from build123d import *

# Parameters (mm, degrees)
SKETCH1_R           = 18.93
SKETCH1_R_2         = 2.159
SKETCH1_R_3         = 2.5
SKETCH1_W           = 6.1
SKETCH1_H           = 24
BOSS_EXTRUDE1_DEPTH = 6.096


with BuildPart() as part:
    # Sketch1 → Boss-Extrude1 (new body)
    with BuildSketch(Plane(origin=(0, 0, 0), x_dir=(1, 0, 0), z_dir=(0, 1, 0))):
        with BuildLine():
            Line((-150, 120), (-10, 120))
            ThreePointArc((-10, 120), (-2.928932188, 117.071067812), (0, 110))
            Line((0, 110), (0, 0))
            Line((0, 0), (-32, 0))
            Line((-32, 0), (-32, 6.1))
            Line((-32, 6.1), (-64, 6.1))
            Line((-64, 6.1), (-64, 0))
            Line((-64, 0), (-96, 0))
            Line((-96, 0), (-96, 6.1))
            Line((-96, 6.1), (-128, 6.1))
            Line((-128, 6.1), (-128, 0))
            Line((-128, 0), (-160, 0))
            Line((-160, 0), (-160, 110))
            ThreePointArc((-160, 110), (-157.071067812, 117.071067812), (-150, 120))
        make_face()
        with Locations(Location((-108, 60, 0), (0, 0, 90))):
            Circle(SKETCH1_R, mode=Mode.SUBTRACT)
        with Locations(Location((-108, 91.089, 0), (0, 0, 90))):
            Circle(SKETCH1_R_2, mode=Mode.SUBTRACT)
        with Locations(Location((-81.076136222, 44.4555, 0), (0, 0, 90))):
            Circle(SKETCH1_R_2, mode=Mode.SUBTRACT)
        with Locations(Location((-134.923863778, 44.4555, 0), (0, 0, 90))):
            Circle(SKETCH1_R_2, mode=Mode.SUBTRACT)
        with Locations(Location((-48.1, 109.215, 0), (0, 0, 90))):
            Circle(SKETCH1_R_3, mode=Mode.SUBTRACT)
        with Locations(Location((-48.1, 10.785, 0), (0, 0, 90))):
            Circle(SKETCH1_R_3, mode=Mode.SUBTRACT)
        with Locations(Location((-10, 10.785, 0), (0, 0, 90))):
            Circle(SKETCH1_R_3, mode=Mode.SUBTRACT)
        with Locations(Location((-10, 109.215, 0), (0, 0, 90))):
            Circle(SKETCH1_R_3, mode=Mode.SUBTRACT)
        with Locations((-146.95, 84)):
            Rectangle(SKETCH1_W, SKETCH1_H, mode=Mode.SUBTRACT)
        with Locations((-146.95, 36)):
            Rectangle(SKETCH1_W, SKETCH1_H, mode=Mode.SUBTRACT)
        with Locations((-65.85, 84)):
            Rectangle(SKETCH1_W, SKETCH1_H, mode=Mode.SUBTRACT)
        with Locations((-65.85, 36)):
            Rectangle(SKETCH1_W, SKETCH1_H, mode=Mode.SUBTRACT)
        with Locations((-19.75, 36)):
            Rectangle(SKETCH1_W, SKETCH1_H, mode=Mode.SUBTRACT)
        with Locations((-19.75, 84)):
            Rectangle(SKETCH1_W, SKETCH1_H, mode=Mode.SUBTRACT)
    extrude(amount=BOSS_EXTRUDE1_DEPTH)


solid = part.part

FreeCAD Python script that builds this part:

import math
import FreeCAD as App
import Part
import Sketcher


def add_polygon(sketch, points):
    """Adds a closed chain of lines whose ends are joined by coincident constraints."""
    first, n = sketch.GeometryCount, len(points)
    for a, b in zip(points, points[1:] + points[:1]):
        sketch.addGeometry(Part.LineSegment(App.Vector(*a, 0), App.Vector(*b, 0)), False)
    for i in range(n):
        sketch.addConstraint(Sketcher.Constraint("Coincident", first + i, 2, first + (i + 1) % n, 1))

doc = App.newDocument("Part")
body = doc.addObject("PartDesign::Body", "Body")

# Sketch on XZ plane
sketch1 = body.newObject("Sketcher::SketchObject", "Sketch")
sketch1.AttachmentSupport = (doc.getObject("XZ_Plane"), [""])
sketch1.MapMode = "FlatFace"
sketch1.addGeometry(Part.LineSegment(App.Vector(-10, -120, 0), App.Vector(-150, -120, 0)), False)  # 0
sketch1.addGeometry(Part.ArcOfCircle(Part.Circle(App.Vector(-150, -110, 0), App.Vector(0, 0, 1), 10), math.radians(180), math.radians(270)), False)  # 1
sketch1.addGeometry(Part.LineSegment(App.Vector(-160, -110, 0), App.Vector(-160, 0, 0)), False)  # 2
sketch1.addGeometry(Part.LineSegment(App.Vector(-160, 0, 0), App.Vector(-128, 0, 0)), False)  # 3
sketch1.addGeometry(Part.LineSegment(App.Vector(-128, 0, 0), App.Vector(-128, -6.1, 0)), False)  # 4
sketch1.addGeometry(Part.LineSegment(App.Vector(-128, -6.1, 0), App.Vector(-96, -6.1, 0)), False)  # 5
sketch1.addGeometry(Part.LineSegment(App.Vector(-96, -6.1, 0), App.Vector(-96, 0, 0)), False)  # 6
sketch1.addGeometry(Part.LineSegment(App.Vector(-96, 0, 0), App.Vector(-64, 0, 0)), False)  # 7
sketch1.addGeometry(Part.LineSegment(App.Vector(-64, 0, 0), App.Vector(-64, -6.1, 0)), False)  # 8
sketch1.addGeometry(Part.LineSegment(App.Vector(-64, -6.1, 0), App.Vector(-32, -6.1, 0)), False)  # 9
sketch1.addGeometry(Part.LineSegment(App.Vector(-32, -6.1, 0), App.Vector(-32, 0, 0)), False)  # 10
sketch1.addGeometry(Part.LineSegment(App.Vector(-32, 0, 0), App.Vector(0, 0, 0)), False)  # 11
sketch1.addGeometry(Part.LineSegment(App.Vector(0, 0, 0), App.Vector(0, -110, 0)), False)  # 12
sketch1.addGeometry(Part.ArcOfCircle(Part.Circle(App.Vector(-10, -110, 0), App.Vector(0, 0, 1), 10), math.radians(-90), math.radians(0)), False)  # 13
sketch1.addGeometry(Part.Circle(App.Vector(-10, -10.8, 0), App.Vector(0, 0, 1), 2.5), False)  # 14
sketch1.addGeometry(Part.Circle(App.Vector(-48.1, -10.8, 0), App.Vector(0, 0, 1), 2.5), False)  # 15
add_polygon(sketch1, [(-22.8, -24), (-22.8, -48), (-16.7, -48), (-16.7, -24)])  # lines 16-19
add_polygon(sketch1, [(-68.9, -24), (-68.9, -48), (-62.8, -48), (-62.8, -24)])  # lines 20-23
sketch1.addGeometry(Part.Circle(App.Vector(-81.1, -44.5, 0), App.Vector(0, 0, 1), 2.2), False)  # 24
add_polygon(sketch1, [(-150, -24), (-150, -48), (-143.9, -48), (-143.9, -24)])  # lines 25-28
sketch1.addGeometry(Part.Circle(App.Vector(-134.9, -44.5, 0), App.Vector(0, 0, 1), 2.2), False)  # 29
add_polygon(sketch1, [(-22.8, -72), (-22.8, -96), (-16.7, -96), (-16.7, -72)])  # lines 30-33
add_polygon(sketch1, [(-68.9, -72), (-68.9, -96), (-62.8, -96), (-62.8, -72)])  # lines 34-37
sketch1.addGeometry(Part.Circle(App.Vector(-10, -109.2, 0), App.Vector(0, 0, 1), 2.5), False)  # 38
sketch1.addGeometry(Part.Circle(App.Vector(-48.1, -109.2, 0), App.Vector(0, 0, 1), 2.5), False)  # 39
sketch1.addGeometry(Part.Circle(App.Vector(-108, -60, 0), App.Vector(0, 0, 1), 18.9), False)  # 40
add_polygon(sketch1, [(-150, -72), (-150, -96), (-143.9, -96), (-143.9, -72)])  # lines 41-44
sketch1.addGeometry(Part.Circle(App.Vector(-108, -91.1, 0), App.Vector(0, 0, 1), 2.2), False)  # 45
sketch1.addConstraint(Sketcher.Constraint("Tangent", 0, 2, 1, 2))
sketch1.addConstraint(Sketcher.Constraint("Tangent", 1, 1, 2, 1))
sketch1.addConstraint(Sketcher.Constraint("Coincident", 2, 2, 3, 1))
sketch1.addConstraint(Sketcher.Constraint("Coincident", 3, 2, 4, 1))
sketch1.addConstraint(Sketcher.Constraint("Coincident", 4, 2, 5, 1))
sketch1.addConstraint(Sketcher.Constraint("Coincident", 5, 2, 6, 1))
sketch1.addConstraint(Sketcher.Constraint("Coincident", 6, 2, 7, 1))
sketch1.addConstraint(Sketcher.Constraint("Coincident", 7, 2, 8, 1))
sketch1.addConstraint(Sketcher.Constraint("Coincident", 8, 2, 9, 1))
sketch1.addConstraint(Sketcher.Constraint("Coincident", 9, 2, 10, 1))
sketch1.addConstraint(Sketcher.Constraint("Coincident", 10, 2, 11, 1))
sketch1.addConstraint(Sketcher.Constraint("Coincident", 11, 2, 12, 1))
sketch1.addConstraint(Sketcher.Constraint("Tangent", 12, 2, 13, 2))
sketch1.addConstraint(Sketcher.Constraint("Tangent", 13, 1, 0, 1))
sketch1.addConstraint(Sketcher.Constraint("Horizontal", 0))
sketch1.addConstraint(Sketcher.Constraint("Vertical", 2))
sketch1.addConstraint(Sketcher.Constraint("Horizontal", 3))
sketch1.addConstraint(Sketcher.Constraint("Vertical", 4))
sketch1.addConstraint(Sketcher.Constraint("Horizontal", 5))
sketch1.addConstraint(Sketcher.Constraint("Vertical", 6))
sketch1.addConstraint(Sketcher.Constraint("Horizontal", 7))
sketch1.addConstraint(Sketcher.Constraint("Vertical", 8))
sketch1.addConstraint(Sketcher.Constraint("Horizontal", 9))
sketch1.addConstraint(Sketcher.Constraint("Vertical", 10))
sketch1.addConstraint(Sketcher.Constraint("Horizontal", 11))
sketch1.addConstraint(Sketcher.Constraint("Vertical", 12))
sketch1.addConstraint(Sketcher.Constraint("Vertical", 16))
sketch1.addConstraint(Sketcher.Constraint("Horizontal", 17))
sketch1.addConstraint(Sketcher.Constraint("Vertical", 18))
sketch1.addConstraint(Sketcher.Constraint("Horizontal", 19))
sketch1.addConstraint(Sketcher.Constraint("Vertical", 20))
sketch1.addConstraint(Sketcher.Constraint("Horizontal", 21))
sketch1.addConstraint(Sketcher.Constraint("Vertical", 22))
sketch1.addConstraint(Sketcher.Constraint("Horizontal", 23))
sketch1.addConstraint(Sketcher.Constraint("Vertical", 25))
sketch1.addConstraint(Sketcher.Constraint("Horizontal", 26))
sketch1.addConstraint(Sketcher.Constraint("Vertical", 27))
sketch1.addConstraint(Sketcher.Constraint("Horizontal", 28))
sketch1.addConstraint(Sketcher.Constraint("Vertical", 30))
sketch1.addConstraint(Sketcher.Constraint("Horizontal", 31))
sketch1.addConstraint(Sketcher.Constraint("Vertical", 32))
sketch1.addConstraint(Sketcher.Constraint("Horizontal", 33))
sketch1.addConstraint(Sketcher.Constraint("Vertical", 34))
sketch1.addConstraint(Sketcher.Constraint("Horizontal", 35))
sketch1.addConstraint(Sketcher.Constraint("Vertical", 36))
sketch1.addConstraint(Sketcher.Constraint("Horizontal", 37))
sketch1.addConstraint(Sketcher.Constraint("Vertical", 41))
sketch1.addConstraint(Sketcher.Constraint("Horizontal", 42))
sketch1.addConstraint(Sketcher.Constraint("Vertical", 43))
sketch1.addConstraint(Sketcher.Constraint("Horizontal", 44))
sketch1.addConstraint(Sketcher.Constraint("Coincident", 11, 2, -1, 1))
sketch1.addConstraint(Sketcher.Constraint("Equal", 1, 13))
sketch1.addConstraint(Sketcher.Constraint("Equal", 14, 15))
sketch1.addConstraint(Sketcher.Constraint("Equal", 24, 29))
sketch1.addConstraint(Sketcher.Constraint("Equal", 15, 38))
sketch1.addConstraint(Sketcher.Constraint("Equal", 38, 39))
sketch1.addConstraint(Sketcher.Constraint("Equal", 29, 45))
sketch1.addConstraint(Sketcher.Constraint("PointOnObject", 2, 2, -1))
sketch1.addConstraint(Sketcher.Constraint("PointOnObject", 6, 2, -1))
sketch1.addConstraint(Sketcher.Constraint("Horizontal", 14, 3, 15, 3))
sketch1.addConstraint(Sketcher.Constraint("Horizontal", 24, 3, 29, 3))
sketch1.addConstraint(Sketcher.Constraint("Horizontal", 38, 3, 39, 3))
sketch1.addConstraint(Sketcher.Constraint("Horizontal", 5, 2, 8, 2))
sketch1.addConstraint(Sketcher.Constraint("Horizontal", 17, 2, 20, 2))
sketch1.addConstraint(Sketcher.Constraint("Horizontal", 19, 2, 22, 2))
sketch1.addConstraint(Sketcher.Constraint("Horizontal", 21, 2, 25, 2))
sketch1.addConstraint(Sketcher.Constraint("Horizontal", 23, 2, 27, 2))
sketch1.addConstraint(Sketcher.Constraint("Horizontal", 31, 2, 34, 2))
sketch1.addConstraint(Sketcher.Constraint("Horizontal", 33, 2, 36, 2))
sketch1.addConstraint(Sketcher.Constraint("Horizontal", 35, 2, 41, 2))
sketch1.addConstraint(Sketcher.Constraint("Horizontal", 37, 2, 43, 2))
sketch1.addConstraint(Sketcher.Constraint("Vertical", 13, 3, 14, 3))
sketch1.addConstraint(Sketcher.Constraint("Vertical", 14, 3, 38, 3))
sketch1.addConstraint(Sketcher.Constraint("Vertical", 15, 3, 39, 3))
sketch1.addConstraint(Sketcher.Constraint("Vertical", 40, 3, 45, 3))
sketch1.addConstraint(Sketcher.Constraint("Vertical", 0, 2, 25, 2))
sketch1.addConstraint(Sketcher.Constraint("Vertical", 19, 2, 30, 2))
sketch1.addConstraint(Sketcher.Constraint("Vertical", 18, 2, 31, 2))
sketch1.addConstraint(Sketcher.Constraint("Vertical", 23, 2, 34, 2))
sketch1.addConstraint(Sketcher.Constraint("Vertical", 22, 2, 35, 2))
sketch1.addConstraint(Sketcher.Constraint("Vertical", 28, 2, 41, 2))
sketch1.addConstraint(Sketcher.Constraint("Vertical", 27, 2, 42, 2))
sketch1.addConstraint(Sketcher.Constraint("Equal", 3, 5))
sketch1.addConstraint(Sketcher.Constraint("Equal", 5, 7))
sketch1.addConstraint(Sketcher.Constraint("Equal", 7, 9))
sketch1.addConstraint(Sketcher.Constraint("Equal", 9, 11))
sketch1.addConstraint(Sketcher.Constraint("Equal", 19, 21))
sketch1.addConstraint(Sketcher.Constraint("Equal", 23, 26))
sketch1.addConstraint(Sketcher.Constraint("Equal", 44, 4))
sketch1.addConstraint(Sketcher.Constraint("Equal", 27, 30))
sketch1.addConstraint(Sketcher.Constraint("Diameter", 14, 5.0))
sketch1.addConstraint(Sketcher.Constraint("Radius", 1, 10.0))
sketch1.addConstraint(Sketcher.Constraint("Diameter", 40, 37.86))
sketch1.addConstraint(Sketcher.Constraint("DistanceX", 0, 2, 0, 1, 140.0))
sketch1.addConstraint(Sketcher.Constraint("DistanceY", 2, 1, 2, 2, 110.0))
sketch1.addConstraint(Sketcher.Constraint("DistanceY", 16, 2, 16, 1, 24.0))
sketch1.addConstraint(Sketcher.Constraint("Diameter", 24, 4.318))
sketch1.addConstraint(Sketcher.Constraint("DistanceX", 17, 1, 17, 2, 6.1))
sketch1.addConstraint(Sketcher.Constraint("DistanceX", 40, 3, -1, 1, 108.0))
sketch1.addConstraint(Sketcher.Constraint("DistanceY", 40, 3, -1, 1, 60.0))
sketch1.addConstraint(Sketcher.Constraint("DistanceY", 16, 2, -1, 1, 48.0))
sketch1.addConstraint(Sketcher.Constraint("DistanceY", 30, 2, -1, 1, 96.0))
sketch1.addConstraint(Sketcher.Constraint("DistanceX", 21, 2, 16, 2, 40.0))
sketch1.addConstraint(Sketcher.Constraint("DistanceX", 15, 3, -1, 1, 48.1))
sketch1.addConstraint(Sketcher.Constraint("DistanceX", 16, 2, -1, 1, 22.8))
sketch1.addConstraint(Sketcher.Constraint("DistanceY", 38, 3, 14, 3, 98.43))
sketch1.addConstraint(Sketcher.Constraint("DistanceY", 14, 3, -1, 1, 10.785))
sketch1.addConstraint(Sketcher.Constraint("DistanceY", 45, 3, -1, 1, 91.089))
sketch1.addConstraint(Sketcher.Constraint("DistanceY", 24, 3, -1, 1, 44.4555))
sketch1.addConstraint(Sketcher.Constraint("DistanceX", 24, 3, -1, 1, 81.076136))
sketch1.addConstraint(Sketcher.Constraint("DistanceX", 29, 3, -1, 1, 134.923864))
pad1 = body.newObject("PartDesign::Pad", "Pad")
pad1.Profile = sketch1
pad1.Length = 6.096
pad1.Reversed = True

doc.recompute()
